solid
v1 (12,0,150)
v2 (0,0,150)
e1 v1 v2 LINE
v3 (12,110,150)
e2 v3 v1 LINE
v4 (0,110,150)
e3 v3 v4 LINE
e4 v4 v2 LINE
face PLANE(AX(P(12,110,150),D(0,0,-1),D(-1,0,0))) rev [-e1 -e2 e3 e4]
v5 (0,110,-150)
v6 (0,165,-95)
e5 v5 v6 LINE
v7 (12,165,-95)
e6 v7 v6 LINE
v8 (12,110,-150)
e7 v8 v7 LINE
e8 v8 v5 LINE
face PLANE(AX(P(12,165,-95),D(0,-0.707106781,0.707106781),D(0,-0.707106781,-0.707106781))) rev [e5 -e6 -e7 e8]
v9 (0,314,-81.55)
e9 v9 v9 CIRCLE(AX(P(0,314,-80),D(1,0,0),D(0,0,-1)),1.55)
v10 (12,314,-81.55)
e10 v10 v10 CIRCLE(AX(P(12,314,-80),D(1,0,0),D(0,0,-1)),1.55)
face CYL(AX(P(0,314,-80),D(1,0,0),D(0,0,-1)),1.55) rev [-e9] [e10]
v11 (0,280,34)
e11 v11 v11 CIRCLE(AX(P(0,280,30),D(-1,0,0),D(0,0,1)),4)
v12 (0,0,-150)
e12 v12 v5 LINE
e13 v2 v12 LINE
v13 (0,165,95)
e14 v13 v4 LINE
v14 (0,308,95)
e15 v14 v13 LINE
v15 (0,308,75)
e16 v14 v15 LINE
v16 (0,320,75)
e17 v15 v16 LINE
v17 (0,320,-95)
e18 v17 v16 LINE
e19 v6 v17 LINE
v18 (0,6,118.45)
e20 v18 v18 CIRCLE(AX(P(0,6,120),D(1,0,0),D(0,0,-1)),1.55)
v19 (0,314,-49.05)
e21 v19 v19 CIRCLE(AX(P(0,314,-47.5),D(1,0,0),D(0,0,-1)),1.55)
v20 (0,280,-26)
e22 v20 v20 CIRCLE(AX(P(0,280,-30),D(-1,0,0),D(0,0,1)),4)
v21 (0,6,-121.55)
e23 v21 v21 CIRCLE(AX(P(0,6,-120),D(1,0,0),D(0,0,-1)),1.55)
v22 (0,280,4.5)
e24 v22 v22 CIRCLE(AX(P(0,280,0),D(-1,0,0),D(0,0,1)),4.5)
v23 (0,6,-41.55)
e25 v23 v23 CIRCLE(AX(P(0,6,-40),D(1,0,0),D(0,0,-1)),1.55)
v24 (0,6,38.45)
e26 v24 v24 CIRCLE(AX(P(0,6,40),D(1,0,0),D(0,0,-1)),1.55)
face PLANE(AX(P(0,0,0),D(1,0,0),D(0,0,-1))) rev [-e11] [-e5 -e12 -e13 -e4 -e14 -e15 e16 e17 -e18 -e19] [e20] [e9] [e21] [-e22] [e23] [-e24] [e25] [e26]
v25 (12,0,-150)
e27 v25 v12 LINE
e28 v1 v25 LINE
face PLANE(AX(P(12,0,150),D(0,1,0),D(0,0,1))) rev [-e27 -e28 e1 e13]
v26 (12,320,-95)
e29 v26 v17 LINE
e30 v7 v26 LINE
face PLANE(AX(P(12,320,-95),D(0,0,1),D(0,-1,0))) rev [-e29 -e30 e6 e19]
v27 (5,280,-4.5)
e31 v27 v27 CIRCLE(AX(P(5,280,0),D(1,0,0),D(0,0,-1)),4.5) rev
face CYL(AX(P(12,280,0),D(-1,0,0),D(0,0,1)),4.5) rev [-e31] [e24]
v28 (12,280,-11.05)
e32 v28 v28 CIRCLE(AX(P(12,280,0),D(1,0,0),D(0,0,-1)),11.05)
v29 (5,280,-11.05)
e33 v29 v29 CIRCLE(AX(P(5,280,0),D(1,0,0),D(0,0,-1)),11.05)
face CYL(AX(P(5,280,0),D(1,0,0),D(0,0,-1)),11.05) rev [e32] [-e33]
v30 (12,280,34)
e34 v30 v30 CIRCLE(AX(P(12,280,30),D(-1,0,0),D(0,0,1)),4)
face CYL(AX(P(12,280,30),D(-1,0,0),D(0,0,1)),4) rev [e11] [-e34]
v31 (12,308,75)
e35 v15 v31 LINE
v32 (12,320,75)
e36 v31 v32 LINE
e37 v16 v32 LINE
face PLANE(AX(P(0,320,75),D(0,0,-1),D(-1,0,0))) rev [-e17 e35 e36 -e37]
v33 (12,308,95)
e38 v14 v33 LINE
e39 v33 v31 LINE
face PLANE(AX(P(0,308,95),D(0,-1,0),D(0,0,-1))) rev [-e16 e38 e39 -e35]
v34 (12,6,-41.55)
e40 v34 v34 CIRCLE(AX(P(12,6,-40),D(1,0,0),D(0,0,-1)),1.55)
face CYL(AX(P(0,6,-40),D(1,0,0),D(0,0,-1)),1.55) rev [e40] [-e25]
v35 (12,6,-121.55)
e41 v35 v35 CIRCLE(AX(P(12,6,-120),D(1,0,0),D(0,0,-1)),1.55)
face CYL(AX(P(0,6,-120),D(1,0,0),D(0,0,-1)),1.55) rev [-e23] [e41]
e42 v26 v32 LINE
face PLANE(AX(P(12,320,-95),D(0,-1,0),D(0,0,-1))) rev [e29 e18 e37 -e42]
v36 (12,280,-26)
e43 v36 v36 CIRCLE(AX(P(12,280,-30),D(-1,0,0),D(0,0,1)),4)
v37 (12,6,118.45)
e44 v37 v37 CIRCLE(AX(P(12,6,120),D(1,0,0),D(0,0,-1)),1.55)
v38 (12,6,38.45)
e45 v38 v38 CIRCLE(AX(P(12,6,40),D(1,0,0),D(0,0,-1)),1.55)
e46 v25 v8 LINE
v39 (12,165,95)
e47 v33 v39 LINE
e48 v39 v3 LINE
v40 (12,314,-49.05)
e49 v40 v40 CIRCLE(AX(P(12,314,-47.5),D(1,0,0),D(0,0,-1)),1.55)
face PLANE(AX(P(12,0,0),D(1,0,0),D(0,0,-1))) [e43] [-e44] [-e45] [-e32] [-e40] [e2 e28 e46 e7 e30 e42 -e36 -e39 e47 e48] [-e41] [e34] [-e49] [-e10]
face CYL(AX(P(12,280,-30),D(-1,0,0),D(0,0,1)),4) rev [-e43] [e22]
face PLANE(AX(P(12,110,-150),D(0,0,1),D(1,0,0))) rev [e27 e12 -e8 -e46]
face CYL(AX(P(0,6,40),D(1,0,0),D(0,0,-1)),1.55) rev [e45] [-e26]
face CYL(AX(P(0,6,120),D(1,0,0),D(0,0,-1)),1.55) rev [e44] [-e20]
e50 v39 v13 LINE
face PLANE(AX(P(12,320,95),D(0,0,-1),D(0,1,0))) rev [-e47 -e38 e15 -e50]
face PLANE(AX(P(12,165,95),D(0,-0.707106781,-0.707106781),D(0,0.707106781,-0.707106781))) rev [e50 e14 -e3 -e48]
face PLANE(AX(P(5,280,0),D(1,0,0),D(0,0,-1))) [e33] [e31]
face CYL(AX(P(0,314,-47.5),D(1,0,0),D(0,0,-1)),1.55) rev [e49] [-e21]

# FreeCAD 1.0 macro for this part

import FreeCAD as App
import Part
import Sketcher

doc = App.newDocument("Part")
body = doc.addObject("PartDesign::Body", "Body")

sketch1 = doc.addObject("Sketcher::SketchObject", "Sketch")
body.addObject(sketch1)
sketch1.AttachmentSupport = (doc.YZ_Plane, [""])
sketch1.MapMode = "FlatFace"
sketch1.addGeometry([
    Part.LineSegment(App.Vector(320, -95, 0), App.Vector(320, 95, 0)),
    Part.LineSegment(App.Vector(320, 95, 0), App.Vector(165, 95, 0)),
    Part.LineSegment(App.Vector(165, 95, 0), App.Vector(110, 150, 0)),
    Part.LineSegment(App.Vector(110, 150, 0), App.Vector(0, 150, 0)),
    Part.LineSegment(App.Vector(0, 150, 0), App.Vector(0, -150, 0)),
    Part.LineSegment(App.Vector(0, -150, 0), App.Vector(110, -150, 0)),
    Part.LineSegment(App.Vector(110, -150, 0), App.Vector(165, -95, 0)),
    Part.LineSegment(App.Vector(165, -95, 0), App.Vector(320, -95, 0)),
], False)
sketch1.addConstraint([
    Sketcher.Constraint("Coincident", 0, 2, 1, 1),
    Sketcher.Constraint("Coincident", 1, 2, 2, 1),
    Sketcher.Constraint("Coincident", 2, 2, 3, 1),
    Sketcher.Constraint("Coincident", 3, 2, 4, 1),
    Sketcher.Constraint("Coincident", 4, 2, 5, 1),
    Sketcher.Constraint("Coincident", 5, 2, 6, 1),
    Sketcher.Constraint("Coincident", 6, 2, 7, 1),
    Sketcher.Constraint("Coincident", 7, 2, 0, 1),
    Sketcher.Constraint("Vertical", 0),
    Sketcher.Constraint("Horizontal", 1),
    Sketcher.Constraint("Horizontal", 3),
    Sketcher.Constraint("Vertical", 4),
    Sketcher.Constraint("Horizontal", 5),
    Sketcher.Constraint("Horizontal", 7),
    Sketcher.Constraint("Symmetric", 3, 2, 4, 2, -1, 1),
    Sketcher.Constraint("Symmetric", 1, 2, 6, 2, -1),
    Sketcher.Constraint("Perpendicular", 2, 6),
    Sketcher.Constraint("Vertical", 2, 2, 5, 2),
    Sketcher.Constraint("DistanceX", 1, 2, 1, 1, 155.0),
    Sketcher.Constraint("DistanceX", 3, 2, 3, 1, 110.0),
    Sketcher.Constraint("DistanceY", 0, 1, 0, 2, 190.0),
    Sketcher.Constraint("DistanceY", 4, 2, 4, 1, 300.0),
])
pad1 = doc.addObject("PartDesign::Pad", "Pad")
body.addObject(pad1)
pad1.Profile = sketch1
pad1.Length = 12

sketch2 = doc.addObject("Sketcher::SketchObject", "Sketch001")
body.addObject(sketch2)
sketch2.AttachmentSupport = (doc.YZ_Plane, [""])
sketch2.MapMode = "FlatFace"
sketch2.addGeometry([
    Part.Circle(App.Vector(280, 30, 0), App.Vector(0, 0, 1), 4),
    Part.Circle(App.Vector(280, -30, 0), App.Vector(0, 0, 1), 4),
], False)
sketch2.addConstraint([
    Sketcher.Constraint("Equal", 0, 1),
    Sketcher.Constraint("Symmetric", 0, 3, 1, 3, -1),
    Sketcher.Constraint("Diameter", 0, 8.0),
    Sketcher.Constraint("DistanceX", -1, 1, 0, 3, 280.0),
    Sketcher.Constraint("DistanceY", -1, 1, 0, 3, 30.0),
])
pocket1 = doc.addObject("PartDesign::Pocket", "Pocket")
body.addObject(pocket1)
pocket1.Profile = sketch2
pocket1.Type = "ThroughAll"
pocket1.Reversed = True

sketch3 = doc.addObject("Sketcher::SketchObject", "Sketch002")
body.addObject(sketch3)
sketch3.AttachmentSupport = (doc.YZ_Plane, [""])
sketch3.MapMode = "FlatFace"
sketch3.addGeometry(Part.Circle(App.Vector(280, 0, 0), App.Vector(0, 0, 1), 4.5), False)
sketch3.addConstraint([
    Sketcher.Constraint("PointOnObject", 0, 3, -1),
    Sketcher.Constraint("Diameter", 0, 9.0),
    Sketcher.Constraint("DistanceX", -1, 1, 0, 3, 280.0),
])
pocket2 = doc.addObject("PartDesign::Pocket", "Pocket001")
body.addObject(pocket2)
pocket2.Profile = sketch3
pocket2.Type = "ThroughAll"
pocket2.Reversed = True

sketch4 = doc.addObject("Sketcher::SketchObject", "Sketch003")
body.addObject(sketch4)
sketch4.AttachmentSupport = (doc.YZ_Plane, [""])
sketch4.MapMode = "FlatFace"
sketch4.AttachmentOffset = App.Placement(App.Vector(0, 0, 12), App.Rotation())
sketch4.addGeometry(Part.Circle(App.Vector(280, 0, 0), App.Vector(0, 0, 1), 11), False)
sketch4.addConstraint([
    Sketcher.Constraint("PointOnObject", 0, 3, -1),
    Sketcher.Constraint("Diameter", 0, 22.1),
    Sketcher.Constraint("DistanceX", -1, 1, 0, 3, 280.0),
])
pocket3 = doc.addObject("PartDesign::Pocket", "Pocket002")
body.addObject(pocket3)
pocket3.Profile = sketch4
pocket3.Length = 7

sketch5 = doc.addObject("Sketcher::SketchObject", "Sketch004")
body.addObject(sketch5)
sketch5.AttachmentSupport = (doc.YZ_Plane, [""])
sketch5.MapMode = "FlatFace"
sketch5.AttachmentOffset = App.Placement(App.Vector(0, 0, 12), App.Rotation())
sketch5.addGeometry([
    Part.LineSegment(App.Vector(320, 95, 0), App.Vector(308, 95, 0)),
    Part.LineSegment(App.Vector(308, 95, 0), App.Vector(308, 75, 0)),
    Part.LineSegment(App.Vector(308, 75, 0), App.Vector(320, 75, 0)),
    Part.LineSegment(App.Vector(320, 75, 0), App.Vector(320, 95, 0)),
], False)
sketch5.addConstraint([
    Sketcher.Constraint("Coincident", 0, 2, 1, 1),
    Sketcher.Constraint("Coincident", 1, 2, 2, 1),
    Sketcher.Constraint("Coincident", 2, 2, 3, 1),
    Sketcher.Constraint("Coincident", 3, 2, 0, 1),
    Sketcher.Constraint("Horizontal", 0),
    Sketcher.Constraint("Vertical", 1),
    Sketcher.Constraint("Horizontal", 2),
    Sketcher.Constraint("Vertical", 3),
    Sketcher.Constraint("DistanceX", 0, 2, 0, 1, 12.0),
    Sketcher.Constraint("DistanceY", 1, 2, 1, 1, 20.0),
    Sketcher.Constraint("DistanceX", -1, 1, 0, 2, 308.0),
    Sketcher.Constraint("DistanceY", -1, 1, 0, 2, 95.0),
])
pocket4 = doc.addObject("PartDesign::Pocket", "Pocket003")
body.addObject(pocket4)
pocket4.Profile = sketch5
pocket4.Type = "ThroughAll"

sketch6 = doc.addObject("Sketcher::SketchObject", "Sketch005")
body.addObject(sketch6)
sketch6.AttachmentSupport = (doc.YZ_Plane, [""])
sketch6.MapMode = "FlatFace"
sketch6.AttachmentOffset = App.Placement(App.Vector(0, 0, 12), App.Rotation())
sketch6.addGeometry([
    Part.Circle(App.Vector(6, 120, 0), App.Vector(0, 0, 1), 1.6),
    Part.Circle(App.Vector(6, 40, 0), App.Vector(0, 0, 1), 1.6),
    Part.Circle(App.Vector(6, -40, 0), App.Vector(0, 0, 1), 1.6),
    Part.Circle(App.Vector(6, -120, 0), App.Vector(0, 0, 1), 1.6),
    Part.Circle(App.Vector(314, -80, 0), App.Vector(0, 0, 1), 1.6),
    Part.Circle(App.Vector(314, -47.5, 0), App.Vector(0, 0, 1), 1.6),
], False)
sketch6.addConstraint([
    Sketcher.Constraint("Equal", 0, 1),
    Sketcher.Constraint("Equal", 1, 2),
    Sketcher.Constraint("Equal", 2, 3),
    Sketcher.Constraint("Equal", 3, 4),
    Sketcher.Constraint("Equal", 4, 5),
    Sketcher.Constraint("Symmetric", 1, 3, 2, 3, -1),
    Sketcher.Constraint("Symmetric", 0, 3, 3, 3, -1),
    Sketcher.Constraint("Vertical", 0, 3, 1, 3),
    Sketcher.Constraint("Vertical", 4, 3, 5, 3),
    Sketcher.Constraint("Diameter", 0, 3.1),
    Sketcher.Constraint("DistanceX", -1, 1, 0, 3, 6.0),
    Sketcher.Constraint("DistanceY", -1, 1, 0, 3, 120.0),
    Sketcher.Constraint("DistanceY", -1, 1, 1, 3, 40.0),
    Sketcher.Constraint("DistanceX", -1, 1, 4, 3, 314.0),
    Sketcher.Constraint("DistanceY", 4, 3, -1, 1, 80.0),
    Sketcher.Constraint("DistanceY", 5, 3, -1, 1, 47.5),
])
pocket5 = doc.addObject("PartDesign::Pocket", "Pocket004")
body.addObject(pocket5)
pocket5.Profile = sketch6
pocket5.Type = "ThroughAll"

doc.recompute()
